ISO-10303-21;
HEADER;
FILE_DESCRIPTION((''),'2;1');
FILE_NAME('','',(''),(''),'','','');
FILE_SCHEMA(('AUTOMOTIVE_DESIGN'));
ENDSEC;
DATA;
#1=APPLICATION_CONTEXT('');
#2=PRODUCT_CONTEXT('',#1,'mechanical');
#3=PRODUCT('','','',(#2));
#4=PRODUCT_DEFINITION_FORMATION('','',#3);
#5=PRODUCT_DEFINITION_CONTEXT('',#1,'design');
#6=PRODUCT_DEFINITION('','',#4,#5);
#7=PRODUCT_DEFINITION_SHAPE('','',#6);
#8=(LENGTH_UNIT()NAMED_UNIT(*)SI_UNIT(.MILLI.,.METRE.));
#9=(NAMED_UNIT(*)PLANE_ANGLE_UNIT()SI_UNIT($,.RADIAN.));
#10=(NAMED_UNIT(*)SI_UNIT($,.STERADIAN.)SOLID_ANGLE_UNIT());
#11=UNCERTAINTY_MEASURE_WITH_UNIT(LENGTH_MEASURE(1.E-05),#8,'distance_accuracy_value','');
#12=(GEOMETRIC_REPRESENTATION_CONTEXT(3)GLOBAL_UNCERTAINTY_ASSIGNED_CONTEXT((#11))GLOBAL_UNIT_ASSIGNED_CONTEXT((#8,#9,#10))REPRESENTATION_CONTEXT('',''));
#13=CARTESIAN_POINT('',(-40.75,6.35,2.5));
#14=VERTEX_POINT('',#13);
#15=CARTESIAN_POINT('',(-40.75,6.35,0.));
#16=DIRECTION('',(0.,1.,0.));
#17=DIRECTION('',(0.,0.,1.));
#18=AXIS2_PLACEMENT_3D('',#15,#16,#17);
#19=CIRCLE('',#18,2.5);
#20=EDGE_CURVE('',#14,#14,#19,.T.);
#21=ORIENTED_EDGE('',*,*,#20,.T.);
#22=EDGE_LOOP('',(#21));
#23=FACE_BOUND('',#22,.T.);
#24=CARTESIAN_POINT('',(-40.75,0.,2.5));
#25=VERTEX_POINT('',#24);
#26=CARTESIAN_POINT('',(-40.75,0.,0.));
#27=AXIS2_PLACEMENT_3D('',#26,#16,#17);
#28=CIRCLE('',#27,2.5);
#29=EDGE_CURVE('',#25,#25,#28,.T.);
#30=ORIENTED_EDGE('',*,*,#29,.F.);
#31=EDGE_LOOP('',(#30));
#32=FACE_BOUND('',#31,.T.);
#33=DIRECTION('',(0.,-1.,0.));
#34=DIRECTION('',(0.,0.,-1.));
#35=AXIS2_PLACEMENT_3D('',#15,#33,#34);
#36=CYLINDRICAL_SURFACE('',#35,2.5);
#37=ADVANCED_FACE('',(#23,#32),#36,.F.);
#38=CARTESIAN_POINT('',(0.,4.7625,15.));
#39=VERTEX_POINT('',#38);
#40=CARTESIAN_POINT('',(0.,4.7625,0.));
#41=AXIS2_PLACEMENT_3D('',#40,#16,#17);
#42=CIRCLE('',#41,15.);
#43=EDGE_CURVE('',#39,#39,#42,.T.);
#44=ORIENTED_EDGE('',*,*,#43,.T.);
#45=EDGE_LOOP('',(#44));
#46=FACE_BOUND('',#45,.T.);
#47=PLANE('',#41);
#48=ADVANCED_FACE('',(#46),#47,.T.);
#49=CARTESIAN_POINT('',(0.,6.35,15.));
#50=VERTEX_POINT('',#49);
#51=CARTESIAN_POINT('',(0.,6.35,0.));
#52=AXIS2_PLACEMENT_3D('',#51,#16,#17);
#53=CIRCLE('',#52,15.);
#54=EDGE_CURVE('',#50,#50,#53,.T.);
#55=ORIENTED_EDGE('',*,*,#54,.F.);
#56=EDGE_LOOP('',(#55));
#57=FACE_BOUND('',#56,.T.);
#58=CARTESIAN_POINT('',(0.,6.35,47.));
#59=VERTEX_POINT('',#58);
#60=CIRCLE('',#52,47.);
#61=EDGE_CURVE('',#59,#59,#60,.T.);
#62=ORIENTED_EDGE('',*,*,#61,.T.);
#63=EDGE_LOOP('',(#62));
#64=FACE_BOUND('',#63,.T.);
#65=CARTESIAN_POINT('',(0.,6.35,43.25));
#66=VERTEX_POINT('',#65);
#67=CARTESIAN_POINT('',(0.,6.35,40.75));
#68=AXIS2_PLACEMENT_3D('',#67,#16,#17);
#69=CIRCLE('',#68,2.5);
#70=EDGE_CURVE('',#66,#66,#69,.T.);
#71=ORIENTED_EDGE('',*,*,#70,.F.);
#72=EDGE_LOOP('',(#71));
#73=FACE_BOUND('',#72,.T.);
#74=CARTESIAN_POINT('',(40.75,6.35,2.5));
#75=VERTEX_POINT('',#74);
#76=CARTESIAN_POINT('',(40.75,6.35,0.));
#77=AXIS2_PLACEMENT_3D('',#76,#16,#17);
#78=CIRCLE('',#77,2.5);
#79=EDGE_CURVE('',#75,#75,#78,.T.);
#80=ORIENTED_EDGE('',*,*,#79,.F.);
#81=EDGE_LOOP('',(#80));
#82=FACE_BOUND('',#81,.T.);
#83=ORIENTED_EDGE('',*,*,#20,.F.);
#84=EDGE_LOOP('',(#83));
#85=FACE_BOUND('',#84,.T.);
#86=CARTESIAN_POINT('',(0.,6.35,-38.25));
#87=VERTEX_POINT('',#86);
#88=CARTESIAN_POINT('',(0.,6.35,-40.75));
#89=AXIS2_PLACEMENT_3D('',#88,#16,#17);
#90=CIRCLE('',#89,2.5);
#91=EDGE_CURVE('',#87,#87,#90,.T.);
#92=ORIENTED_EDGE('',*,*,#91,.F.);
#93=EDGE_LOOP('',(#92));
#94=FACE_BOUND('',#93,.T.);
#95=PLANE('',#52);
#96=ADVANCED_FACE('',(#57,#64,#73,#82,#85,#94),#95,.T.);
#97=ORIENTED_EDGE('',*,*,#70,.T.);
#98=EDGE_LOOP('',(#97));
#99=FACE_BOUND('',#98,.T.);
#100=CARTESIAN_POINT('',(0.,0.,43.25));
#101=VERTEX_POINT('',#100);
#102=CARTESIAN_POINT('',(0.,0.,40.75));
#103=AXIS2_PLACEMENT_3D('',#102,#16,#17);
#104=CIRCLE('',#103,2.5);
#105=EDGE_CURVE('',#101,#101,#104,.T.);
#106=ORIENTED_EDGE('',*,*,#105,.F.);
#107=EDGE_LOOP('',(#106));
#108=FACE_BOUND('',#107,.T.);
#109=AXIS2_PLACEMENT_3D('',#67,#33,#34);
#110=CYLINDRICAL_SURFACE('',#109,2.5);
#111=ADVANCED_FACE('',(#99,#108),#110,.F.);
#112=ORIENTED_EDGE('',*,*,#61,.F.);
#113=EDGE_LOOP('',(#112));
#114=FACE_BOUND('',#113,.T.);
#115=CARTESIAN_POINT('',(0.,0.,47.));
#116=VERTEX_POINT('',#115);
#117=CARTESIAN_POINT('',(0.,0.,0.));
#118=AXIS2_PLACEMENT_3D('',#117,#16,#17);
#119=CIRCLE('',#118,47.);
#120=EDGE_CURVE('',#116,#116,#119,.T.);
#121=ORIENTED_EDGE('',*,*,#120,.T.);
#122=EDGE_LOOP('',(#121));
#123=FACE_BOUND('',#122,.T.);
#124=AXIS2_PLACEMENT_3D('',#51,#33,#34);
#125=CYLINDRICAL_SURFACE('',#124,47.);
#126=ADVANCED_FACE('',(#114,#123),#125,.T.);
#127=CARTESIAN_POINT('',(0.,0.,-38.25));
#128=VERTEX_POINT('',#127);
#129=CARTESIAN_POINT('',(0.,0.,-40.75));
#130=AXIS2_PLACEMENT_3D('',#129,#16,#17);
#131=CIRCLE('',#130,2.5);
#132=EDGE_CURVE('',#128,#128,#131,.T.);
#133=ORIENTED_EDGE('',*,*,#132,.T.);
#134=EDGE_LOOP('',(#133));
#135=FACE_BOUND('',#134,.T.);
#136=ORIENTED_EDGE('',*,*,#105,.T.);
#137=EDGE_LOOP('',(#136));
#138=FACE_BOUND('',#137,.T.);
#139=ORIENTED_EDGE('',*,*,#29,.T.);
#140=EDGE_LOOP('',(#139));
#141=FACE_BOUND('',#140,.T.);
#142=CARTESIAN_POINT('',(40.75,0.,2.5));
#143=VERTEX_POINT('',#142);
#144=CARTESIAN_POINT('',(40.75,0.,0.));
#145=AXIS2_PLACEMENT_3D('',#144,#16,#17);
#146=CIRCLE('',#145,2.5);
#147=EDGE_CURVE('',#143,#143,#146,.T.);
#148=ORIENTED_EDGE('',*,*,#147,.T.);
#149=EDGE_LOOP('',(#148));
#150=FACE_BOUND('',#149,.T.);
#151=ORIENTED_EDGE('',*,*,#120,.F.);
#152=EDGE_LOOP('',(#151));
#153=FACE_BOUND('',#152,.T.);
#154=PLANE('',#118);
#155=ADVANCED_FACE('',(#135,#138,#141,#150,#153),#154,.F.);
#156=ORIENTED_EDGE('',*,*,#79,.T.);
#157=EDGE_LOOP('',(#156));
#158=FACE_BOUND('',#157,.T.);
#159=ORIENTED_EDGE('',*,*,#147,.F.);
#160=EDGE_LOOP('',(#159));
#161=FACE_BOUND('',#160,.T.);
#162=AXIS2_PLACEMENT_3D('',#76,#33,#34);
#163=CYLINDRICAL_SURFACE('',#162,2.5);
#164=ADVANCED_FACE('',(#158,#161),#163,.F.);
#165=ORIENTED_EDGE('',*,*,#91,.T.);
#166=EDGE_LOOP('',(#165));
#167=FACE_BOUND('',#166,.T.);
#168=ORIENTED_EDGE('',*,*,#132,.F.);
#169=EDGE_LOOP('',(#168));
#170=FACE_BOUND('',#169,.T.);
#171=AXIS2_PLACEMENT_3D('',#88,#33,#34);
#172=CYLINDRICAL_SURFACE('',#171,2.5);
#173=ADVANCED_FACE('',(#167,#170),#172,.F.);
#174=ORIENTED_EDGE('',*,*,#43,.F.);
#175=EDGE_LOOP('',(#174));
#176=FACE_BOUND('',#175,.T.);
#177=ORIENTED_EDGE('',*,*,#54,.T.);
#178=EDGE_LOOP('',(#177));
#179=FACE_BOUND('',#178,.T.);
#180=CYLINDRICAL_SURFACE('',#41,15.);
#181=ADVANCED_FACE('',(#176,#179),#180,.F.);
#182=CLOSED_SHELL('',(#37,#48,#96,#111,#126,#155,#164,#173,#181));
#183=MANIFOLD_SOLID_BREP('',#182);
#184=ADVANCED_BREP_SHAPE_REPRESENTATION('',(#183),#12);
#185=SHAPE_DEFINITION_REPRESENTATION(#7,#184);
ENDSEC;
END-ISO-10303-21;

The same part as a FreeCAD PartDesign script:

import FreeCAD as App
import Part
import Sketcher
from FreeCAD import Vector

doc = App.newDocument("Part")
body = doc.addObject("PartDesign::Body", "Body")

# Sketch on XZ plane
sketch1 = body.newObject("Sketcher::SketchObject", "Sketch")
sketch1.AttachmentSupport = (doc.getObject("XZ_Plane"), [""])
sketch1.MapMode = "FlatFace"
sketch1.addGeometry([
    Part.Circle(Vector(0, 0, 0), Vector(0, 0, 1), 47),  # 0
    Part.Circle(Vector(0, -40.8, 0), Vector(0, 0, 1), 2.5),  # 1
    Part.Circle(Vector(-40.8, 0, 0), Vector(0, 0, 1), 2.5),  # 2
    Part.Circle(Vector(40.8, 0, 0), Vector(0, 0, 1), 2.5),  # 3
    Part.Circle(Vector(0, 40.8, 0), Vector(0, 0, 1), 2.5),  # 4
], False)
sketch1.addConstraint([
    Sketcher.Constraint("Coincident", 0, 3, -1, 1),
    Sketcher.Constraint("Equal", 1, 2),
    Sketcher.Constraint("Equal", 2, 3),
    Sketcher.Constraint("Equal", 3, 4),
    Sketcher.Constraint("Symmetric", 2, 3, 3, 3, -1, 1),
    Sketcher.Constraint("Symmetric", 1, 3, 4, 3, -1, 1),
    Sketcher.Constraint("PointOnObject", 1, 3, -2),
    Sketcher.Constraint("PointOnObject", 2, 3, -1),
    Sketcher.Constraint("Diameter", 0, 94.0),
    Sketcher.Constraint("Diameter", 1, 5.0),
    Sketcher.Constraint("DistanceX", 2, 3, 3, 3, 81.5),
    Sketcher.Constraint("DistanceY", 1, 3, 4, 3, 81.5),
])
pad1 = body.newObject("PartDesign::Pad", "Pad")
pad1.Profile = sketch1
pad1.Length = 6.35
pad1.Reversed = True

# Sketch on XZ plane
sketch2 = body.newObject("Sketcher::SketchObject", "Sketch001")
sketch2.AttachmentSupport = (doc.getObject("XZ_Plane"), [""])
sketch2.MapMode = "FlatFace"
sketch2.AttachmentOffset = App.Placement(Vector(0, 0, -6.35), App.Rotation())
sketch2.addGeometry(Part.Circle(Vector(0, 0, 0), Vector(0, 0, 1), 15), False)
sketch2.addConstraint([
    Sketcher.Constraint("Coincident", 0, 3, -1, 1),
    Sketcher.Constraint("Diameter", 0, 30.0),
])
pocket1 = body.newObject("PartDesign::Pocket", "Pocket")
pocket1.Profile = sketch2
pocket1.Length = 1.5875
pocket1.Reversed = True

doc.recompute()
